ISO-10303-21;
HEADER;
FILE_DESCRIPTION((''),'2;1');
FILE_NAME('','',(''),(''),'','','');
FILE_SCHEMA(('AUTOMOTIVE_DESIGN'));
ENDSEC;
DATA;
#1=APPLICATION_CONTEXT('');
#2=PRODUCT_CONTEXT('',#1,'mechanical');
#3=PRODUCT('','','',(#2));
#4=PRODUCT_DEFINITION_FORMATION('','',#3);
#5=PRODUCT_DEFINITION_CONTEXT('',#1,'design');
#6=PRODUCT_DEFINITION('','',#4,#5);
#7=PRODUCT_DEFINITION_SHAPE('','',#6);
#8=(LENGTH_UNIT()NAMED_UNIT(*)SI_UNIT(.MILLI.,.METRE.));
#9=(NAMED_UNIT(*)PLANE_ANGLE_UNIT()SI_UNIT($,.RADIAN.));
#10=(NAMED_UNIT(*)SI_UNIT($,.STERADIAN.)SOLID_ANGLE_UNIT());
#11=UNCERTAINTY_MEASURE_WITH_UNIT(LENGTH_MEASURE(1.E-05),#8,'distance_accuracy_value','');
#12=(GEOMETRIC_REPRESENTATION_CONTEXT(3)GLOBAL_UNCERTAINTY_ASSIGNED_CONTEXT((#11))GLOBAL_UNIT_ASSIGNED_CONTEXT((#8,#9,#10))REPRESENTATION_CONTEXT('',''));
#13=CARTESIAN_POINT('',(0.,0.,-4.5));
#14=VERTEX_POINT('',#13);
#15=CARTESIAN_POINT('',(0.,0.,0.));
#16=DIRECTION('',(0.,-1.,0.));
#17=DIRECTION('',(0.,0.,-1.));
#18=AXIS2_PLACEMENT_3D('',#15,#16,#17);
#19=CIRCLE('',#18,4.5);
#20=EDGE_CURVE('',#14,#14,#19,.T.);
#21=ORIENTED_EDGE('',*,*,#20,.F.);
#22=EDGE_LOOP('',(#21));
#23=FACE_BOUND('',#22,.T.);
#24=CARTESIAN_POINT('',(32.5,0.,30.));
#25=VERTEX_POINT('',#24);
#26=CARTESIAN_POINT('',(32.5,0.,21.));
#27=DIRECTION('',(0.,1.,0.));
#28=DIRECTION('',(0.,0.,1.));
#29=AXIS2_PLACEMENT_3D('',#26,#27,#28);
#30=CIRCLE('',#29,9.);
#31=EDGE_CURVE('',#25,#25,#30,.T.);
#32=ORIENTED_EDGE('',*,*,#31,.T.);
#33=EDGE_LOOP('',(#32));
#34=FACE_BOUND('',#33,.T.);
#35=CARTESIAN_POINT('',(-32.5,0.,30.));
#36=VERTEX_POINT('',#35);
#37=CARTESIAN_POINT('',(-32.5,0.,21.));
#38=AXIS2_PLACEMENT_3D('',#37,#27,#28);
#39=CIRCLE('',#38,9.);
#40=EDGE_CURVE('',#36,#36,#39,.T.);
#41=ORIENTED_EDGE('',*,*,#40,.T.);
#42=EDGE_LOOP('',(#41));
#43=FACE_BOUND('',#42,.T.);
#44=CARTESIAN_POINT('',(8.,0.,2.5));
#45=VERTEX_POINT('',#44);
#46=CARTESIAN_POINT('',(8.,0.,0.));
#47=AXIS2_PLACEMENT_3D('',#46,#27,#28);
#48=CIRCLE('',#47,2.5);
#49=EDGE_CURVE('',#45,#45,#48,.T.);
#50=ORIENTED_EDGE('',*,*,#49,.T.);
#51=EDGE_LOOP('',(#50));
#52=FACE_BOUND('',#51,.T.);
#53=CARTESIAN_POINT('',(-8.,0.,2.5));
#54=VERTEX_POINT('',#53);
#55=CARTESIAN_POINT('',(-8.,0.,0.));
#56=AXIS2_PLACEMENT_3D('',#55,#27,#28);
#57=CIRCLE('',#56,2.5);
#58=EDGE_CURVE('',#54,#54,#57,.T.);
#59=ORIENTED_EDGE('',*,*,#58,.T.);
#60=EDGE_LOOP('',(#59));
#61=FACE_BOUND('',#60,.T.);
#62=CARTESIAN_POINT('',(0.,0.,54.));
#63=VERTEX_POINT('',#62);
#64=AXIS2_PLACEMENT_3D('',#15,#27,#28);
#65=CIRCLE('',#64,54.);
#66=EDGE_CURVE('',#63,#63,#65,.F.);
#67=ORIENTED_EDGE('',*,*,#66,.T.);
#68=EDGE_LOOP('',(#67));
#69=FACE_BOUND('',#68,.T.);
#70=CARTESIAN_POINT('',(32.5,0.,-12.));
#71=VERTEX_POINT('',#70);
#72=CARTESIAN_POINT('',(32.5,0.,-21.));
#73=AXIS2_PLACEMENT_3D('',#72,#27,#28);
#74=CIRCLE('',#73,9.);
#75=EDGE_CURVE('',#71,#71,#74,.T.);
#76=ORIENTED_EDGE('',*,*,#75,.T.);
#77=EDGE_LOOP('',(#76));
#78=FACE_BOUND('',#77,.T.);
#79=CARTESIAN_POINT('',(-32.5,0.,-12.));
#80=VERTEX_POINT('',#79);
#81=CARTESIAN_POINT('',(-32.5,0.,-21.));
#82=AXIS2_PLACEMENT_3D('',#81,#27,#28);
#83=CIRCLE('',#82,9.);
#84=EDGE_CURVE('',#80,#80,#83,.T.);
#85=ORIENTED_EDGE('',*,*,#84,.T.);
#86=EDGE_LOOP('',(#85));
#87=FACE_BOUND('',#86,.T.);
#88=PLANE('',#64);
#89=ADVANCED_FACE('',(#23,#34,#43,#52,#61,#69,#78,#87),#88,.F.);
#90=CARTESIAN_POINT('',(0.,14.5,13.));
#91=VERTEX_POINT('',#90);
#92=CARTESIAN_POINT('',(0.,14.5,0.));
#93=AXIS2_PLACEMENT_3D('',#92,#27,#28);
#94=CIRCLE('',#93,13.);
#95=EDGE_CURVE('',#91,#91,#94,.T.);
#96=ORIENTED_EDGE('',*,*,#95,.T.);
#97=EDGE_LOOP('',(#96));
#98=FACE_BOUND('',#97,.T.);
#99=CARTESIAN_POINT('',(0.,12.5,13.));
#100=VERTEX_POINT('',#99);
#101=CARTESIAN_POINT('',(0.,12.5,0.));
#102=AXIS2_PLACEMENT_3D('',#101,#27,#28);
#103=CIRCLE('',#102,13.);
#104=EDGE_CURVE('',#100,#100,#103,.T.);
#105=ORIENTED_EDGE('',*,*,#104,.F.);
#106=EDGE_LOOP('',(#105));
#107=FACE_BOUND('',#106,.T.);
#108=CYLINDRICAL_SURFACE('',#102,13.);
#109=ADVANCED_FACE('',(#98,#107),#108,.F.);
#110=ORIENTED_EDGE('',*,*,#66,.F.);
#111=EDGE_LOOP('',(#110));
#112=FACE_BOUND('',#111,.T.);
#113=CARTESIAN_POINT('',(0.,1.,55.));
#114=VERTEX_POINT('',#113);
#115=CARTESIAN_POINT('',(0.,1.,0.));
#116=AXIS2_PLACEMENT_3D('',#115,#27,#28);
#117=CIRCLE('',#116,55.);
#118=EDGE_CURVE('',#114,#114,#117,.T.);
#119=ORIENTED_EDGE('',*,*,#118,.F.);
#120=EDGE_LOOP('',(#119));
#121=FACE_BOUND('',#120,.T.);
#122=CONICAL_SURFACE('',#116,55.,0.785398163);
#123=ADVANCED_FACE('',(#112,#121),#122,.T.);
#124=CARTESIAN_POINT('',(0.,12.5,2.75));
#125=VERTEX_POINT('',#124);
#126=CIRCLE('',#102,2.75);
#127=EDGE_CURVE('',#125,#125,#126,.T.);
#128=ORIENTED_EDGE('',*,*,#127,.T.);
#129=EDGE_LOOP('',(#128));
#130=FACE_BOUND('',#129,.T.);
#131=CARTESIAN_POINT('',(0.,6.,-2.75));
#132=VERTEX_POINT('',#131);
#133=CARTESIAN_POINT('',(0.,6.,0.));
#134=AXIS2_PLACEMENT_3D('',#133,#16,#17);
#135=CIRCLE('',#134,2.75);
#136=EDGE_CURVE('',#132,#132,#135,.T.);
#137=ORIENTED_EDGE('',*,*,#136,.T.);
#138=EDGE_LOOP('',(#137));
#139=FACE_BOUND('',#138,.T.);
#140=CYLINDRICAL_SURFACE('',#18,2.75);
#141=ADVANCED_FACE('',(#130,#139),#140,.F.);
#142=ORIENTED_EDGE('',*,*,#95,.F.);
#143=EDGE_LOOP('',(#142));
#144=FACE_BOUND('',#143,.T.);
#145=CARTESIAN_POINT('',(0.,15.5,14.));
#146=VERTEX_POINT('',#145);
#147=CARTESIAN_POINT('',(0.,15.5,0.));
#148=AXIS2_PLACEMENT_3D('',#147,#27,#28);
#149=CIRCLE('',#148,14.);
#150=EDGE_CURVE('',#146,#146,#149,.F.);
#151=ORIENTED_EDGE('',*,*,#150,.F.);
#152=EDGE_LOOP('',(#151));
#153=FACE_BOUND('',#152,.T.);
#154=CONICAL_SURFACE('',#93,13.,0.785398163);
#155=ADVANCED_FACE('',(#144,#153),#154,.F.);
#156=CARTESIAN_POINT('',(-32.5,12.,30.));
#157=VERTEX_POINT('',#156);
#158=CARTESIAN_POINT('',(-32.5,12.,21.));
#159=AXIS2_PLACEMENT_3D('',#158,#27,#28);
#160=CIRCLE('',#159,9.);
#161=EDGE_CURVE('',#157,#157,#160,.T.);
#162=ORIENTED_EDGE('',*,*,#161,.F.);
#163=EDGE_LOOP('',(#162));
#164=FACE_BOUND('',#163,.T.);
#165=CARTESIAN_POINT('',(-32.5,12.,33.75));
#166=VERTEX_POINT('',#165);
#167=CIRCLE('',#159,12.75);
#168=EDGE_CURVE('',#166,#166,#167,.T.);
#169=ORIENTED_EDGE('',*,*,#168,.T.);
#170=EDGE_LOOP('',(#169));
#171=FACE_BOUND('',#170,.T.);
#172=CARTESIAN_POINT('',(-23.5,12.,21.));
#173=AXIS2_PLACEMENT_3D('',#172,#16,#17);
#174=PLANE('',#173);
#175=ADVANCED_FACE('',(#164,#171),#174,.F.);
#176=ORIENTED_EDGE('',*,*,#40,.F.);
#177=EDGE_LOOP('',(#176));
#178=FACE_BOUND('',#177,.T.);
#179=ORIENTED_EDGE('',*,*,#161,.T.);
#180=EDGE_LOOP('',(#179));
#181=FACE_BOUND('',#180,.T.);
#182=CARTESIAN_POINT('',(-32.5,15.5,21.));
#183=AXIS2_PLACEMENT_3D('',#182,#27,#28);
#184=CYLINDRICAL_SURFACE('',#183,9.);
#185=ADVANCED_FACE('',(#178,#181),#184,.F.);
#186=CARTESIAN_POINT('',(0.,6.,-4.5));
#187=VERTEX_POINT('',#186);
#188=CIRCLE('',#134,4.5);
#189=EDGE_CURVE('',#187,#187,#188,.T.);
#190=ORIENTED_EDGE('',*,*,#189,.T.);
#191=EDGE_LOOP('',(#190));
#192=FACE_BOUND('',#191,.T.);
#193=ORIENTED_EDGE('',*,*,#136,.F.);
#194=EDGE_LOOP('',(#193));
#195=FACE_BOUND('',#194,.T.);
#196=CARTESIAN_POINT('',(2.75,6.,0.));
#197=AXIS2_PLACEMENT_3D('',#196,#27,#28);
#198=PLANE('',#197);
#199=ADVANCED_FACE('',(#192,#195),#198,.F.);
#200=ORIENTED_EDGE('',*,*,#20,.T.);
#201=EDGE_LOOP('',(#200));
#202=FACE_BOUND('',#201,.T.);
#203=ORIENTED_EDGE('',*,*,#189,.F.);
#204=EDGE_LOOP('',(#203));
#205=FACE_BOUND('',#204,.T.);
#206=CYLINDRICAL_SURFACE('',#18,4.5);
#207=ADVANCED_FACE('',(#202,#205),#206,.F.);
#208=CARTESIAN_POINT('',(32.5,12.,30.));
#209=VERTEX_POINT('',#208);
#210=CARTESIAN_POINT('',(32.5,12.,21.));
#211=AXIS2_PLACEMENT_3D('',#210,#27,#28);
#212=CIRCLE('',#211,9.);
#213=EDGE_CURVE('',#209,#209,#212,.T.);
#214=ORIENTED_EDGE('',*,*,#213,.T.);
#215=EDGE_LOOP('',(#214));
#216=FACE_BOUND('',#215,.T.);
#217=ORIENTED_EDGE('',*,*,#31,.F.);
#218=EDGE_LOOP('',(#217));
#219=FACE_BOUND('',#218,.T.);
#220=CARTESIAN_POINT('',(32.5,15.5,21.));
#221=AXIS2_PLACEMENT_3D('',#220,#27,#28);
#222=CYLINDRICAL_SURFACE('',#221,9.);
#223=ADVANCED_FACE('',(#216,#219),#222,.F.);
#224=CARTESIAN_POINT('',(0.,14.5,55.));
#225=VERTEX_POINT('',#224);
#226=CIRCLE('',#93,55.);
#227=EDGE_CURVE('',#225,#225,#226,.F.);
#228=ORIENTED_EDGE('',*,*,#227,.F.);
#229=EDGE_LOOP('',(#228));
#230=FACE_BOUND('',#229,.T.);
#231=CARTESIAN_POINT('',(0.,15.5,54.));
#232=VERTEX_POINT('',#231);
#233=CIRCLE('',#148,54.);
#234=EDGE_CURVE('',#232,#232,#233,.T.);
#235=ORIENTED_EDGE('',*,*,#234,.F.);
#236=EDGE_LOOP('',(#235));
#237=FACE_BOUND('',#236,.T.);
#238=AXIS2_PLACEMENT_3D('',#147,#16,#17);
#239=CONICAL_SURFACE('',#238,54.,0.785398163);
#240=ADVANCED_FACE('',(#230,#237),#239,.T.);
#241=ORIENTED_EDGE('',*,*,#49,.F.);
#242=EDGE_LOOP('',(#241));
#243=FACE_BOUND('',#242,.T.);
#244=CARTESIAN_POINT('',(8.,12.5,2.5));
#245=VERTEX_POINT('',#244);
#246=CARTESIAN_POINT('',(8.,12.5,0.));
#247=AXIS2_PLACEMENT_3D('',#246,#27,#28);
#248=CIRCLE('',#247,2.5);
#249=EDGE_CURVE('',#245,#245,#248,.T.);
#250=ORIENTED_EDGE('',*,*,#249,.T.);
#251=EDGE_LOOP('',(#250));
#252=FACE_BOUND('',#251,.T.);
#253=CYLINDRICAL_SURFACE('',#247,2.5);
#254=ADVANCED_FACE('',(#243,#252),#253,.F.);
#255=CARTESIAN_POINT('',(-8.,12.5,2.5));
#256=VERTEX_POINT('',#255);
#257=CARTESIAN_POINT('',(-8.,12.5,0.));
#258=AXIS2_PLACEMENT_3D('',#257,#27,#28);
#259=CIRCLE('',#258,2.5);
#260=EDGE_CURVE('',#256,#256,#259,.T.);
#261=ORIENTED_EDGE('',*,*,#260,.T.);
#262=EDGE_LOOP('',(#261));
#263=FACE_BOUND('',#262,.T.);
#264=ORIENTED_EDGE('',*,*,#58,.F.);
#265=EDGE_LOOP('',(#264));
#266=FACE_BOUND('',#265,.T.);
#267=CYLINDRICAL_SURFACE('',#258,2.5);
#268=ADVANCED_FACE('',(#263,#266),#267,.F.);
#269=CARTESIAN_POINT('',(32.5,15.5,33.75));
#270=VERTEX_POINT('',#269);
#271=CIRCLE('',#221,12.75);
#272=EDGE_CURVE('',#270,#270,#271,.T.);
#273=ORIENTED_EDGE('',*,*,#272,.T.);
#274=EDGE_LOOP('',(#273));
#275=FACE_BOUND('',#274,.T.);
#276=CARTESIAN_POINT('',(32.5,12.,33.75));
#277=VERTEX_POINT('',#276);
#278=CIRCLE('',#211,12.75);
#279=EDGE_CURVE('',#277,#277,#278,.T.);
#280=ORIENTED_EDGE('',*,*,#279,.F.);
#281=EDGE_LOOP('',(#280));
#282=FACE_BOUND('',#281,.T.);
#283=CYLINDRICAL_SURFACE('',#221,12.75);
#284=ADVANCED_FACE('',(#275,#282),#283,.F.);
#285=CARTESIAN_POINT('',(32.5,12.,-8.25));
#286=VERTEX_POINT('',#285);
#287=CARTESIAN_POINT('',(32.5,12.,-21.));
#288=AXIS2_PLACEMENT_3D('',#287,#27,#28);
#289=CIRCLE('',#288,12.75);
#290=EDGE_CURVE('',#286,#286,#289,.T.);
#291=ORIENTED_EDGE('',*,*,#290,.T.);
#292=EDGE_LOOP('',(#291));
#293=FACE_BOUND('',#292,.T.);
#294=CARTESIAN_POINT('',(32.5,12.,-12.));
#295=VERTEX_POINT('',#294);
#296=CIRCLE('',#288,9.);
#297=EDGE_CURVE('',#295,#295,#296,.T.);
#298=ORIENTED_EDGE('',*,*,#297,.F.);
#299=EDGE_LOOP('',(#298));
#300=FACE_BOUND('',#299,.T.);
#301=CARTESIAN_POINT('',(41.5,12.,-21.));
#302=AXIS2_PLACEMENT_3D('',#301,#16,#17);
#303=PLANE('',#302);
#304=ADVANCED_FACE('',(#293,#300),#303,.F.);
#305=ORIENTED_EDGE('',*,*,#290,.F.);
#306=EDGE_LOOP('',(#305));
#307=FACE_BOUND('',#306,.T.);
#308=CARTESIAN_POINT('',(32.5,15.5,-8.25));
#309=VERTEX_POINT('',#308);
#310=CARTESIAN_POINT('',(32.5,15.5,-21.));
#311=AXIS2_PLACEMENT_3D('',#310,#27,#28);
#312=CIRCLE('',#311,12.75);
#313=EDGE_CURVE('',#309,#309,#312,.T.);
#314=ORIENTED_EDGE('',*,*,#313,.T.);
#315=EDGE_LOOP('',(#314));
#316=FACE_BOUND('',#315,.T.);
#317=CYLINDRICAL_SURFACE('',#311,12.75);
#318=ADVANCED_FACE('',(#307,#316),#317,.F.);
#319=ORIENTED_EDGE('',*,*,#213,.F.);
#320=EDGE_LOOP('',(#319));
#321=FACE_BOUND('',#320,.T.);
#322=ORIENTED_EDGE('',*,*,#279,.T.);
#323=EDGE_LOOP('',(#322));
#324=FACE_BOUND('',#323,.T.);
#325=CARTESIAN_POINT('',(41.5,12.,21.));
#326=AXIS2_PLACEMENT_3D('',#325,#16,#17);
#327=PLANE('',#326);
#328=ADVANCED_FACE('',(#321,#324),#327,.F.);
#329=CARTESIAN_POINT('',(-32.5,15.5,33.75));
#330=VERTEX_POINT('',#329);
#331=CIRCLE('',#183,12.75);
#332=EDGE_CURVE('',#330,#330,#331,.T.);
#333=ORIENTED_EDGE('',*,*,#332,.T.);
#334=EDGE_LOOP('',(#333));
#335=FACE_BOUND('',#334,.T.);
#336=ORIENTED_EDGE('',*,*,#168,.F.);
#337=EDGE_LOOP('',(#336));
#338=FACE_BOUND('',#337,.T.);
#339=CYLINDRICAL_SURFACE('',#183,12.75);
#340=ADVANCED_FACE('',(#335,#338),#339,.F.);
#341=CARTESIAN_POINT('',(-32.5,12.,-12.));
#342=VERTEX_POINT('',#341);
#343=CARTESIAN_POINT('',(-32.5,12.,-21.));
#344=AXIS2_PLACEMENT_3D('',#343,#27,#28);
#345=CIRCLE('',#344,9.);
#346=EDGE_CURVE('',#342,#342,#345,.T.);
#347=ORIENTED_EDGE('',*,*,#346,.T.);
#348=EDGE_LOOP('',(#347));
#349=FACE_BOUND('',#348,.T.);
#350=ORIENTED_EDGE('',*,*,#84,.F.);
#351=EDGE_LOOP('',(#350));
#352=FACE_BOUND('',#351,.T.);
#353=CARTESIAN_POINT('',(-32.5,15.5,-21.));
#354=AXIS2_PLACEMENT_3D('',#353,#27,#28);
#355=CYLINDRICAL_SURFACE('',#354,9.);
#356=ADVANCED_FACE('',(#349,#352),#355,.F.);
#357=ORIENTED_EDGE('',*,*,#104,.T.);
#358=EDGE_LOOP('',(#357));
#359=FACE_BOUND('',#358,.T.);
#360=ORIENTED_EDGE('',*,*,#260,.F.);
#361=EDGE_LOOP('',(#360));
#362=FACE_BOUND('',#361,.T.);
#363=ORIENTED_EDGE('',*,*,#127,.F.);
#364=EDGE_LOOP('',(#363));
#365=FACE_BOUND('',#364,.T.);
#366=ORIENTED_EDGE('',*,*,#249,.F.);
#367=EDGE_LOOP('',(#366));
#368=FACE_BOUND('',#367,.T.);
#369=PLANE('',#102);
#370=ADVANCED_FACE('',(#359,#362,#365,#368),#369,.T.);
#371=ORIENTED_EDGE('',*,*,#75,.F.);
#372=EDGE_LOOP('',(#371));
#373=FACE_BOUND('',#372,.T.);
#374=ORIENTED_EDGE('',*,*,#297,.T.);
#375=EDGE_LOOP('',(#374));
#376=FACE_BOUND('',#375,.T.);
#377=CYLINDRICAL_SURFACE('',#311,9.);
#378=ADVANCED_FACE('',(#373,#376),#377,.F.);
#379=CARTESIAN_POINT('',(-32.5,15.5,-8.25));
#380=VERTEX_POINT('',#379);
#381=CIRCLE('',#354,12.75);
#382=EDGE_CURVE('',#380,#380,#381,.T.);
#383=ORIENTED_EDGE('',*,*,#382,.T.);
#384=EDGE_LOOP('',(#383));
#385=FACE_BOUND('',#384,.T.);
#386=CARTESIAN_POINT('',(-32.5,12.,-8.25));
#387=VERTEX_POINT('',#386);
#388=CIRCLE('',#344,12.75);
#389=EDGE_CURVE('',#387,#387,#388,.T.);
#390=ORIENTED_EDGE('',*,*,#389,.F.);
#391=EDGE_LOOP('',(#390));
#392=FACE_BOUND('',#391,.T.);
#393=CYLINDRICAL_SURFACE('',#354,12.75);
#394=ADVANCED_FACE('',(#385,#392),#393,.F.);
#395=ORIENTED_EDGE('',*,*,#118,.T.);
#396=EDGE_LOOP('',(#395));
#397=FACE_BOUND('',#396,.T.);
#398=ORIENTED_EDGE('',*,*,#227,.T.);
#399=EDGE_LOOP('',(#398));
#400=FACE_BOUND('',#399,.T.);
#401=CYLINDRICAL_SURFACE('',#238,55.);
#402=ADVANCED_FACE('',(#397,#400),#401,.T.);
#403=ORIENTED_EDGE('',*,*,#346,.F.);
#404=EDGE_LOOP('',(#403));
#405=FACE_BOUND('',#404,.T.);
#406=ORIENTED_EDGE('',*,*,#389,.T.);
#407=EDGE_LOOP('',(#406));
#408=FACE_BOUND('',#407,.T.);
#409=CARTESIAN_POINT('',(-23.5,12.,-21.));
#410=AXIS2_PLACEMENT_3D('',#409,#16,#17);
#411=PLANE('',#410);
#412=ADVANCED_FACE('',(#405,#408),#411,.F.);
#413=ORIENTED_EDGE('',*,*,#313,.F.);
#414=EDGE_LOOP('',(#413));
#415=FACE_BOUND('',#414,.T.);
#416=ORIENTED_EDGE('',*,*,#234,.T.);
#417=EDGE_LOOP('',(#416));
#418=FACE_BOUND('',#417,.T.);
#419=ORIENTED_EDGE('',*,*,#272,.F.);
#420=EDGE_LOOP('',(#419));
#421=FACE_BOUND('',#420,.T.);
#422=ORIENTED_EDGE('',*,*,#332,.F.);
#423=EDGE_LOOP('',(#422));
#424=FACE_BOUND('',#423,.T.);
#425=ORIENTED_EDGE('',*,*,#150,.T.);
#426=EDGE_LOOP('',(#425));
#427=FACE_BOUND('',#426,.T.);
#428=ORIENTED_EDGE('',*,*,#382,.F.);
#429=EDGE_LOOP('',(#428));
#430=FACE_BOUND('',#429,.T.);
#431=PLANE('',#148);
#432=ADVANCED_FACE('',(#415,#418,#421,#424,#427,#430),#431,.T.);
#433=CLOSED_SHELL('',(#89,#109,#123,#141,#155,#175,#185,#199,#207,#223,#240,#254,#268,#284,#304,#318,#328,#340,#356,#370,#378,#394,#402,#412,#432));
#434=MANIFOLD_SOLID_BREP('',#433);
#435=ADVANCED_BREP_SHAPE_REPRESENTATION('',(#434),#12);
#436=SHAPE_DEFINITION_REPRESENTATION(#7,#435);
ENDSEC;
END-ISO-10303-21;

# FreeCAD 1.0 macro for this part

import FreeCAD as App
import Part
import Sketcher

V = App.Vector


def edges_at(feature, points):
    """Names of the edges that pass closest to the given points."""
    edges = feature.Shape.Edges
    near = lambda p: min(range(len(edges)), key=lambda i: edges[i].distToShape(Part.Vertex(*p))[0])
    return sorted({f"Edge{near(p) + 1}" for p in points})

doc = App.newDocument("Part")
body = doc.addObject("PartDesign::Body", "Body")

sketch1 = body.newObject("Sketcher::SketchObject", "Sketch")
sketch1.AttachmentSupport = (doc.getObject("XZ_Plane"), [""])
sketch1.MapMode = "FlatFace"
sketch1.addGeometry(Part.Circle(V(0, 0, 0), V(0, 0, 1), 55), False)
sketch1.addConstraint([
    Sketcher.Constraint("Coincident", 0, 3, -1, 1),
    Sketcher.Constraint("Diameter", 0, 110.0),
])
pad1 = body.newObject("PartDesign::Pad", "Pad")
pad1.Profile = sketch1
pad1.Length = 15.5
pad1.Reversed = True

sketch2 = body.newObject("Sketcher::SketchObject", "Sketch001")
sketch2.AttachmentSupport = (doc.getObject("XZ_Plane"), [""])
sketch2.MapMode = "FlatFace"
sketch2.AttachmentOffset = App.Placement(V(0, 0, -15.5), App.Rotation())
sketch2.addGeometry([
    Part.Circle(V(-32, -21, 0), V(0, 0, 1), 9),
    Part.Circle(V(32, -21, 0), V(0, 0, 1), 9),
    Part.Circle(V(32, 21, 0), V(0, 0, 1), 9),
    Part.Circle(V(-32, 21, 0), V(0, 0, 1), 9),
], False)
sketch2.addConstraint([
    Sketcher.Constraint("Equal", 0, 1),
    Sketcher.Constraint("Equal", 1, 2),
    Sketcher.Constraint("Equal", 2, 3),
    Sketcher.Constraint("Symmetric", 0, 3, 2, 3, -1, 1),
    Sketcher.Constraint("Symmetric", 1, 3, 3, 3, -1, 1),
    Sketcher.Constraint("Symmetric", 0, 3, 1, 3, -2),
    Sketcher.Constraint("Diameter", 0, 18.0),
    Sketcher.Constraint("DistanceY", 0, 3, -1, 1, 21.0),
    Sketcher.Constraint("DistanceX", 0, 3, 1, 3, 65.0),
])
doc.recompute()
hole = body.newObject("PartDesign::Hole", "Hole")
hole.Profile = sketch2
hole.ThreadType = "None"
hole.Diameter = 18
hole.DepthType = "ThroughAll"
hole.HoleCutType = "Counterbore"
hole.HoleCutDiameter = 25.5
hole.HoleCutDepth = 3.5
hole.Reversed = True

sketch3 = body.newObject("Sketcher::SketchObject", "Sketch002")
sketch3.AttachmentSupport = (doc.getObject("XZ_Plane"), [""])
sketch3.MapMode = "FlatFace"
sketch3.AttachmentOffset = App.Placement(V(0, 0, -15.5), App.Rotation())
sketch3.addGeometry(Part.Circle(V(0, 0, 0), V(0, 0, 1), 13), False)
sketch3.addConstraint([
    Sketcher.Constraint("Coincident", 0, 3, -1, 1),
    Sketcher.Constraint("Diameter", 0, 26.0),
])
pocket1 = body.newObject("PartDesign::Pocket", "Pocket")
pocket1.Profile = sketch3
pocket1.Length = 3
pocket1.Reversed = True

sketch4 = body.newObject("Sketcher::SketchObject", "Sketch003")
sketch4.AttachmentSupport = (doc.getObject("XZ_Plane"), [""])
sketch4.MapMode = "FlatFace"
sketch4.AttachmentOffset = App.Placement(V(0, 0, -12.5), App.Rotation())
sketch4.addGeometry([
    Part.Circle(V(-8, 0, 0), V(0, 0, 1), 2.5),
    Part.Circle(V(8, 0, 0), V(0, 0, 1), 2.5),
], False)
sketch4.addConstraint([
    Sketcher.Constraint("Equal", 0, 1),
    Sketcher.Constraint("Symmetric", 0, 3, 1, 3, -1, 1),
    Sketcher.Constraint("PointOnObject", 0, 3, -1),
    Sketcher.Constraint("Diameter", 0, 5.0),
    Sketcher.Constraint("DistanceX", 0, 3, -1, 1, 8.0),
])
doc.recompute()
hole2 = body.newObject("PartDesign::Hole", "Hole001")
hole2.Profile = sketch4
hole2.ThreadType = "None"
hole2.Diameter = 5
hole2.DepthType = "ThroughAll"
hole2.Reversed = True
doc.recompute()

chamfer = body.newObject("PartDesign::Chamfer", "Chamfer")
chamfer.Base = (hole2, edges_at(hole2, [(0, 15.5, -13), (0, 15.5, -55)]))
chamfer.Size = 1
doc.recompute()

chamfer2 = body.newObject("PartDesign::Chamfer", "Chamfer001")
chamfer2.Base = (chamfer, edges_at(chamfer, [(0, 0, -55)]))
chamfer2.Size = 1

sketch5 = body.newObject("Sketcher::SketchObject", "Sketch004")
sketch5.AttachmentSupport = (doc.getObject("XZ_Plane"), [""])
sketch5.MapMode = "FlatFace"
sketch5.addGeometry(Part.Circle(V(0, 0, 0), V(0, 0, 1), 2.8), False)
sketch5.addConstraint([
    Sketcher.Constraint("Coincident", 0, 3, -1, 1),
    Sketcher.Constraint("Diameter", 0, 5.5),
])
doc.recompute()
hole3 = body.newObject("PartDesign::Hole", "Hole002")
hole3.Profile = sketch5
hole3.ThreadType = "None"
hole3.Diameter = 5.5
hole3.DepthType = "ThroughAll"
hole3.HoleCutType = "Counterbore"
hole3.HoleCutDiameter = 9
hole3.HoleCutDepth = 6

doc.recompute()
